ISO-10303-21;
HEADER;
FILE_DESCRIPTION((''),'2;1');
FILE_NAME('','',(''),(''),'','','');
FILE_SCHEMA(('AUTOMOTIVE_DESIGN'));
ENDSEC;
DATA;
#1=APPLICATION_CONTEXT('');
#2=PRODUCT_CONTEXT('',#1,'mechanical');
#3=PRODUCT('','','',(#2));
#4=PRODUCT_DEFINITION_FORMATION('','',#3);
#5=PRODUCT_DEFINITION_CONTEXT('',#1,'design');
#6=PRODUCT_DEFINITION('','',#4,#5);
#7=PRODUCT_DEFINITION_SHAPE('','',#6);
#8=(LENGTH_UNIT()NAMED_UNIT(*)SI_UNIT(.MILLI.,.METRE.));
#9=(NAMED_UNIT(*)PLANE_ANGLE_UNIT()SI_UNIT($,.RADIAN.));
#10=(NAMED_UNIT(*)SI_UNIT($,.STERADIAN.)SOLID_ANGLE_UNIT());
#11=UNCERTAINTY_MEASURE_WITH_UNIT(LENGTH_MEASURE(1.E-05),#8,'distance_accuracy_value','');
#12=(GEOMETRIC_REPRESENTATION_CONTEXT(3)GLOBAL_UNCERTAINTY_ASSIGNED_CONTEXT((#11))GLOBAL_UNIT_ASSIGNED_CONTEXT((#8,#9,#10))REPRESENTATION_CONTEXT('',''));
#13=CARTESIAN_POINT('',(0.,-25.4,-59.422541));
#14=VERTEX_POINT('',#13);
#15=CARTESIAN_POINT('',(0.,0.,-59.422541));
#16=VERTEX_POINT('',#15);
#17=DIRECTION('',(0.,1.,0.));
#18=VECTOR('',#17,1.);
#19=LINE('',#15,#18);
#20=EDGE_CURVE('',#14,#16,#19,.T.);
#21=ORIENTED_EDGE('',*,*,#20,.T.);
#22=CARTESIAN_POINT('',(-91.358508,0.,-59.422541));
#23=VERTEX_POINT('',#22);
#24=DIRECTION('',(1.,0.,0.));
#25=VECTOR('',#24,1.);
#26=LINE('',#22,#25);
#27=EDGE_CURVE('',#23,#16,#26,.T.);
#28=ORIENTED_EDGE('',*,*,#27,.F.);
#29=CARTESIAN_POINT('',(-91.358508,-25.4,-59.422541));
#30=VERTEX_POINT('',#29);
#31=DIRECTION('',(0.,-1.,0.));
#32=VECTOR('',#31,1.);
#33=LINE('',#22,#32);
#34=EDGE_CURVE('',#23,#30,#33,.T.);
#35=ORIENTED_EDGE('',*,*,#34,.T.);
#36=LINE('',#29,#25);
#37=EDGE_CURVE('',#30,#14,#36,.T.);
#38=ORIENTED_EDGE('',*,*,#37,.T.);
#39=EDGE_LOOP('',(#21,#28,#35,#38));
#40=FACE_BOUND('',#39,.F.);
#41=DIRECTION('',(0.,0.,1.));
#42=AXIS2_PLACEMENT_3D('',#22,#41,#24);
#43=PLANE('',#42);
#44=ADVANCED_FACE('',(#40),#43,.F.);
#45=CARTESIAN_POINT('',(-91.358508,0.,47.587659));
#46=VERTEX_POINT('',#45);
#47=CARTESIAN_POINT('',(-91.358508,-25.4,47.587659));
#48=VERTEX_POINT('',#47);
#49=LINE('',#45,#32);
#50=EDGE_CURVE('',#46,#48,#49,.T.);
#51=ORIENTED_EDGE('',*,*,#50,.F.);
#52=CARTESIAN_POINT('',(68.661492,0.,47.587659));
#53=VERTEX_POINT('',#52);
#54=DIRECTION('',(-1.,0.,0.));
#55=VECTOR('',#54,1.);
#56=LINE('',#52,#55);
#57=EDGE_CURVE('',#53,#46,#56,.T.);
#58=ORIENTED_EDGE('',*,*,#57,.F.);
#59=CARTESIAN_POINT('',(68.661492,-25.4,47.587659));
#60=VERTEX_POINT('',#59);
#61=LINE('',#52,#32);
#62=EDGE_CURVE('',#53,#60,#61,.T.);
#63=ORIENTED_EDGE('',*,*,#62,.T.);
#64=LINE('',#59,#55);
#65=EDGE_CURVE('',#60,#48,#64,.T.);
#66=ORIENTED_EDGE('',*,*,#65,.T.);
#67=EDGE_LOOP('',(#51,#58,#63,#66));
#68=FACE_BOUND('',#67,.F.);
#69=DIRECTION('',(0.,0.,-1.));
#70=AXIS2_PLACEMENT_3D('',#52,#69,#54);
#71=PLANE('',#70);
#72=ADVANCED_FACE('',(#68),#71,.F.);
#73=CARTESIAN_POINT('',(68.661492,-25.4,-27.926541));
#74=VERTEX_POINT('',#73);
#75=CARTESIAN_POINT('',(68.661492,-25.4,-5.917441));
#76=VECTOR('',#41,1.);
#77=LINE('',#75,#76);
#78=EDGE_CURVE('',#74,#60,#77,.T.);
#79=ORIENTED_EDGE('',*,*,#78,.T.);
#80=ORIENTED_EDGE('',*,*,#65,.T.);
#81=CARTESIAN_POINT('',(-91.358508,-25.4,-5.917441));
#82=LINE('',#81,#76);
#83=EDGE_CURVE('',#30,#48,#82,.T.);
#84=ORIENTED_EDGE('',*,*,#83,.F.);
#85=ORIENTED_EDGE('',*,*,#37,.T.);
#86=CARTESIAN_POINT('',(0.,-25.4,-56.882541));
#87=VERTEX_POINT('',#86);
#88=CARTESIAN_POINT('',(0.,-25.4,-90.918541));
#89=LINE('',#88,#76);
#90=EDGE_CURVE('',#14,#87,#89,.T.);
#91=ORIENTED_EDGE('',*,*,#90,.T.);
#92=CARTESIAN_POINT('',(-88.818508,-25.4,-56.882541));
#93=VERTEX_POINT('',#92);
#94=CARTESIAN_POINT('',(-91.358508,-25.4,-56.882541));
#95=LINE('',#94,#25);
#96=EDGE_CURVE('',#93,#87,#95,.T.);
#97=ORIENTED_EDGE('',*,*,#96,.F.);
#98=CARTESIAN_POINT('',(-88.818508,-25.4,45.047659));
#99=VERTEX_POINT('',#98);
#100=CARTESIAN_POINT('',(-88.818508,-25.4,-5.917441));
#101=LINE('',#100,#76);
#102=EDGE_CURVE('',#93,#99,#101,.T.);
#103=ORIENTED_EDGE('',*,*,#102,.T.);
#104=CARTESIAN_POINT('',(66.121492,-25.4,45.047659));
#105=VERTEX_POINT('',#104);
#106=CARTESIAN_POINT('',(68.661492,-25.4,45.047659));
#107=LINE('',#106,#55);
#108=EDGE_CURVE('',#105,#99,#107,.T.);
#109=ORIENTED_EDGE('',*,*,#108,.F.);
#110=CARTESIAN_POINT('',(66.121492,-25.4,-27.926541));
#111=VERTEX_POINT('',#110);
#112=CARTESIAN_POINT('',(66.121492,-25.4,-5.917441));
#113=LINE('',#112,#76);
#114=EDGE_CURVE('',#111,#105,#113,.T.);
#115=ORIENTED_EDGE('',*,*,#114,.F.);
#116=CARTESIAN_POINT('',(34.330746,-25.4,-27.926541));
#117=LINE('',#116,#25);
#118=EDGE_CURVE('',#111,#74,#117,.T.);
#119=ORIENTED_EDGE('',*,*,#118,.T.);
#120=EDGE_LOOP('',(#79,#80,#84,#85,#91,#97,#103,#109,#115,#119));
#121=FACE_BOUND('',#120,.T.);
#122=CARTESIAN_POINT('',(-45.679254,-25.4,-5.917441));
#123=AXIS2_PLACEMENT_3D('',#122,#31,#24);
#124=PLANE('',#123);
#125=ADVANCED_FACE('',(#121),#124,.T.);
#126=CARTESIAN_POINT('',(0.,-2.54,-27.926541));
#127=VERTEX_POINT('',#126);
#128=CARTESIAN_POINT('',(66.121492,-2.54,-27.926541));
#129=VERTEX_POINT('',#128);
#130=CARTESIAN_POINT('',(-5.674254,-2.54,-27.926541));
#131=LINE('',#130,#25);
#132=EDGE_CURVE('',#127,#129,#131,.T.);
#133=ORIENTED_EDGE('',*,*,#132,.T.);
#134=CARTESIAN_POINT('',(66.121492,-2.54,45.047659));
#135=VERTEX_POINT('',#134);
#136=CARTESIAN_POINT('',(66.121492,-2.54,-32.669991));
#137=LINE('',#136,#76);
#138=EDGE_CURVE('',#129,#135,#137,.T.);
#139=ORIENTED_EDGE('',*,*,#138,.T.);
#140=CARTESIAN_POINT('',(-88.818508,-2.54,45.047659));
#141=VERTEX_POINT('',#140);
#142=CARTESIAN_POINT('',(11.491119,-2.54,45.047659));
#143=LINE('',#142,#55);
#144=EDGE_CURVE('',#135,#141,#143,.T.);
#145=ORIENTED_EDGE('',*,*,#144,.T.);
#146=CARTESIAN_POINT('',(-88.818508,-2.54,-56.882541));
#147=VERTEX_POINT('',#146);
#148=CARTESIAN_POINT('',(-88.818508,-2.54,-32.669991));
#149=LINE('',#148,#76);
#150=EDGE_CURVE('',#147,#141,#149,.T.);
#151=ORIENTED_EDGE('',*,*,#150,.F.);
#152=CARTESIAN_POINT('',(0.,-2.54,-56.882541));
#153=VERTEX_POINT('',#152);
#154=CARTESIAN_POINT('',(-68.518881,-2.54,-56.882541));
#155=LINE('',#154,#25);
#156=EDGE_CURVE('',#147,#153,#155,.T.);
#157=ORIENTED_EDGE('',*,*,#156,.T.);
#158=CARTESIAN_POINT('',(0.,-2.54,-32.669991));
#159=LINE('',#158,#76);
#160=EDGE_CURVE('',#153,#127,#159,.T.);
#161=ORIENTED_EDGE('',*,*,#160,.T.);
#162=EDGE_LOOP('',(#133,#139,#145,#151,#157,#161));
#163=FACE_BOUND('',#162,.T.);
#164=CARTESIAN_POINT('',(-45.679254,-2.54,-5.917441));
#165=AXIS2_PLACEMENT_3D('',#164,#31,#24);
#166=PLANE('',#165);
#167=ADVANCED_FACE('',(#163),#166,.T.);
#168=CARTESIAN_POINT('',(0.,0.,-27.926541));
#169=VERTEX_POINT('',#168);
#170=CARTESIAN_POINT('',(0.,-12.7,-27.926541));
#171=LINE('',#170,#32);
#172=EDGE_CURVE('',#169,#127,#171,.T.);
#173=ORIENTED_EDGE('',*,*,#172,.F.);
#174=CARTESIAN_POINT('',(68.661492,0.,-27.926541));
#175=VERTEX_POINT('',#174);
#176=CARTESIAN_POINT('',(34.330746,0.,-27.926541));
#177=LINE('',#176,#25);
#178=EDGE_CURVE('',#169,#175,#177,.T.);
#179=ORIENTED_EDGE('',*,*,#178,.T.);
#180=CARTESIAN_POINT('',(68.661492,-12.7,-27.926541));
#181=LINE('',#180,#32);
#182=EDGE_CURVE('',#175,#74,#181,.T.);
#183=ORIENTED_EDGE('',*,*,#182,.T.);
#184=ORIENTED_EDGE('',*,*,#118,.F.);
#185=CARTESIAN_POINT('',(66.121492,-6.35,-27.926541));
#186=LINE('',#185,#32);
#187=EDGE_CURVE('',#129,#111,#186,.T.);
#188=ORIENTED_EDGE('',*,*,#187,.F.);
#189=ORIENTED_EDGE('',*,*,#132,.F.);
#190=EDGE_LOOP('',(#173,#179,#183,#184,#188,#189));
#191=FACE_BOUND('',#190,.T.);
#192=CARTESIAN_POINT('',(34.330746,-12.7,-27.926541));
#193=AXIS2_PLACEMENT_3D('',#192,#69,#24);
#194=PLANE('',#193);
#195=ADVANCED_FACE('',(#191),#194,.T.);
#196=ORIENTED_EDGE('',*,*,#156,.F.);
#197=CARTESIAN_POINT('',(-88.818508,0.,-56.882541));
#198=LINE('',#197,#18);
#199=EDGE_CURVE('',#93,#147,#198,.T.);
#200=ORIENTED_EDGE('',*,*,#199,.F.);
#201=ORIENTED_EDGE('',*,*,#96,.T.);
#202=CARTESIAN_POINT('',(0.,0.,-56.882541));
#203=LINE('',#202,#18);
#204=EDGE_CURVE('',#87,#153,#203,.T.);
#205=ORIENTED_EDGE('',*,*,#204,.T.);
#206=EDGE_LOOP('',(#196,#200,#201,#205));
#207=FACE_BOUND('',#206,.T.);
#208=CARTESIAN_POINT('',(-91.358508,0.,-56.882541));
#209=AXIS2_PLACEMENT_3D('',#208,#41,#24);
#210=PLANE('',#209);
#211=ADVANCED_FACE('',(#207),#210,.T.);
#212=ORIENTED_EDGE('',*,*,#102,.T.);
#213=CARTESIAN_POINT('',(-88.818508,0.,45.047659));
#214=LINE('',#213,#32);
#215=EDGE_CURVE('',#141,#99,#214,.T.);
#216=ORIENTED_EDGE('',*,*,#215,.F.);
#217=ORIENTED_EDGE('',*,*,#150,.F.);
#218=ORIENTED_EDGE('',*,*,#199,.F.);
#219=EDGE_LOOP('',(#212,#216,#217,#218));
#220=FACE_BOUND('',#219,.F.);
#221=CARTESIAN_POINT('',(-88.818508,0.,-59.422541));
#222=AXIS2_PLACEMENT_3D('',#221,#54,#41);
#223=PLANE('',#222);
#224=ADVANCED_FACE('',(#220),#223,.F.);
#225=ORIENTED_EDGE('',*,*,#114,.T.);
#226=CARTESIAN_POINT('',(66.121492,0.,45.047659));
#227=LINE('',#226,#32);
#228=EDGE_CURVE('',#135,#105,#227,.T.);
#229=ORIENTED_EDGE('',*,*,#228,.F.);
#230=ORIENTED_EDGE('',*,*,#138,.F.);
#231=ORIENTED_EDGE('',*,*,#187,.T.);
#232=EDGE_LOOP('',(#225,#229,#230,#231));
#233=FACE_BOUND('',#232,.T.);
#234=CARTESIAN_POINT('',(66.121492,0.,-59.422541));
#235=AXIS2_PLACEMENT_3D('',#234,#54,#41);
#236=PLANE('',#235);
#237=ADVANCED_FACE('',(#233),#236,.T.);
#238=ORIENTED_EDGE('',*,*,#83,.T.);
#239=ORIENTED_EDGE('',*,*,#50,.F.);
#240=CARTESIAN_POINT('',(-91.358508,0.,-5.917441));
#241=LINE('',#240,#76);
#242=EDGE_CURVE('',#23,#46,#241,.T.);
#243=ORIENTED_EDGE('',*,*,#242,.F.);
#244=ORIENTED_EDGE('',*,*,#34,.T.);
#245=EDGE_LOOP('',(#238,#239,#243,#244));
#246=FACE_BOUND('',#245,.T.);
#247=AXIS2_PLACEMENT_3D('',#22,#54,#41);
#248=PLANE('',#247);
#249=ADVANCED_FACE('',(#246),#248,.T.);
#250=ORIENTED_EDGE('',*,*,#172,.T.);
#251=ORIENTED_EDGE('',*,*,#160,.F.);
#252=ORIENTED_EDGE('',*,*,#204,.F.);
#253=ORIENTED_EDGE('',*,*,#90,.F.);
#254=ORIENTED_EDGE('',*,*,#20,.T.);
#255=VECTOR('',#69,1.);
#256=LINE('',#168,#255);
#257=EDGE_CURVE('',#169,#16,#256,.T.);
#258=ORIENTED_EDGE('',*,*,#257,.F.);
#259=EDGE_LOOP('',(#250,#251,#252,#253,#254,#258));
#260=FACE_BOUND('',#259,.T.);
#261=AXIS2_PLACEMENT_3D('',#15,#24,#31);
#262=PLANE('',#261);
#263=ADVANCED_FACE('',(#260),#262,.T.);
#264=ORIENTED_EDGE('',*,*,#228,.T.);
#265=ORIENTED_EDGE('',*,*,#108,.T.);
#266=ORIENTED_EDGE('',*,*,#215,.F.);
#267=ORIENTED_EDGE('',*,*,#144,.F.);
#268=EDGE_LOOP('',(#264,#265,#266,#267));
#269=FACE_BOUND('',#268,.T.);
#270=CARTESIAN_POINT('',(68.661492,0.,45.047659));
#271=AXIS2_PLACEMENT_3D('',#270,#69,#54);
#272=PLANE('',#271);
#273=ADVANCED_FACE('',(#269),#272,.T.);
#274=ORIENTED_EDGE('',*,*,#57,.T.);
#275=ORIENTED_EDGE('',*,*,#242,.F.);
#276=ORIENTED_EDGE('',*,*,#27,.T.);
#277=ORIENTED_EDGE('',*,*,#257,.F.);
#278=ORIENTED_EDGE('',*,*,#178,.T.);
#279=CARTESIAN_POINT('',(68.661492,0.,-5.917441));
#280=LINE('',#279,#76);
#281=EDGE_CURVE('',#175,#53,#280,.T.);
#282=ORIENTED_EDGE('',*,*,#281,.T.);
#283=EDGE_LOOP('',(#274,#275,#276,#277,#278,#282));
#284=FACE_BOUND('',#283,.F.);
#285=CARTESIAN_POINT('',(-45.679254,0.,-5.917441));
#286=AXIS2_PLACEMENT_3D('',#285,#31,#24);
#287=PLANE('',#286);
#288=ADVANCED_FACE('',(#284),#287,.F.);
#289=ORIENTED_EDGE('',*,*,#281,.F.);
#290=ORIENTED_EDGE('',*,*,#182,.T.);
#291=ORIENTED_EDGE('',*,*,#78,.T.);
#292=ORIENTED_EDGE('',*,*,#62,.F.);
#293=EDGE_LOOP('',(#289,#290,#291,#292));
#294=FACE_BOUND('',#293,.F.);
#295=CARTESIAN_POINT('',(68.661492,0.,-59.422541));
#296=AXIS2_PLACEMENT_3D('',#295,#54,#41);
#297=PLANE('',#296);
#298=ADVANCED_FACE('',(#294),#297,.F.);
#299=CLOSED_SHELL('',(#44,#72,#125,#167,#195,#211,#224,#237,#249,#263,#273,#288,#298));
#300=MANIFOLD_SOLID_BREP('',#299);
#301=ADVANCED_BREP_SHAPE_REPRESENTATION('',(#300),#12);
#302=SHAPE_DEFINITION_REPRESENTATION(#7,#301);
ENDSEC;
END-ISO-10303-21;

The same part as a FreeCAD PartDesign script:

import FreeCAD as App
import Part
import Sketcher
from FreeCAD import Vector
Q = App.Units.Quantity


def faces_at(feature, points):
    """Names of the faces that lie closest to the given points."""
    faces = feature.Shape.Faces
    near = lambda p: min(range(len(faces)), key=lambda i: faces[i].distToShape(Part.Vertex(*p))[0])
    return sorted({f"Face{near(p) + 1}" for p in points})


def add_polygon(sketch, points):
    """Adds a closed chain of lines whose ends are joined by coincident constraints."""
    first, n = sketch.GeometryCount, len(points)
    for a, b in zip(points, points[1:] + points[:1]):
        sketch.addGeometry(Part.LineSegment(App.Vector(*a, 0), App.Vector(*b, 0)), False)
    for i in range(n):
        sketch.addConstraint(Sketcher.Constraint("Coincident", first + i, 2, first + (i + 1) % n, 1))

doc = App.newDocument("Part")
body = doc.addObject("PartDesign::Body", "Body")

# Sketch on XZ plane
sketch1 = body.newObject("Sketcher::SketchObject", "Sketch")
sketch1.AttachmentSupport = (doc.getObject("XZ_Plane"), [""])
sketch1.MapMode = "FlatFace"
add_polygon(sketch1, [(-91, 48), (-91, -59), (69, -59), (69, 48)])  # lines 0-3
sketch1.addConstraint(Sketcher.Constraint("Vertical", 0))
sketch1.addConstraint(Sketcher.Constraint("Horizontal", 1))
sketch1.addConstraint(Sketcher.Constraint("Vertical", 2))
sketch1.addConstraint(Sketcher.Constraint("Horizontal", 3))
sketch1.addConstraint(Sketcher.Constraint("DistanceX", 1, 1, 1, 2, Q("6.3 in")))
sketch1.addConstraint(Sketcher.Constraint("DistanceY", 0, 2, 0, 1, Q("4.213 in")))
sketch1.addConstraint(Sketcher.Constraint("DistanceX", 0, 2, -1, 1, 91.358508))
sketch1.addConstraint(Sketcher.Constraint("DistanceY", 0, 2, -1, 1, 59.422541))
pad1 = body.newObject("PartDesign::Pad", "Pad")
pad1.Profile = sketch1
pad1.Length = Q("1 in")
doc.recompute()

thickness = body.newObject("PartDesign::Thickness", "Thickness")
thickness.Base = (pad1, faces_at(pad1, [(-11.349, -25.4, -5.917)]))
thickness.Value = Q("0.1 in")
thickness.Reversed = True
thickness.Join = "Arc"

# Sketch on XY plane
sketch2 = body.newObject("Sketcher::SketchObject", "Sketch001")
sketch2.AttachmentSupport = (doc.getObject("XY_Plane"), [""])
sketch2.MapMode = "FlatFace"
sketch2.AttachmentOffset = App.Placement(Vector(0, 0, -59.422541), App.Rotation())
add_polygon(sketch2, [(0, -25), (0, 0), (69, 0), (69, -25)])  # lines 0-3
sketch2.addConstraint(Sketcher.Constraint("Vertical", 0))
sketch2.addConstraint(Sketcher.Constraint("Horizontal", 1))
sketch2.addConstraint(Sketcher.Constraint("Vertical", 2))
sketch2.addConstraint(Sketcher.Constraint("Horizontal", 3))
sketch2.addConstraint(Sketcher.Constraint("Coincident", 0, 2, -1, 1))
sketch2.addConstraint(Sketcher.Constraint("DistanceY", 0, 1, 0, 2, Q("1 in")))
sketch2.addConstraint(Sketcher.Constraint("DistanceX", 1, 1, 1, 2, 68.661492))
pocket1 = body.newObject("PartDesign::Pocket", "Pocket")
pocket1.Profile = sketch2
pocket1.Length = Q("2.48 in")
pocket1.Midplane = True

doc.recompute()
